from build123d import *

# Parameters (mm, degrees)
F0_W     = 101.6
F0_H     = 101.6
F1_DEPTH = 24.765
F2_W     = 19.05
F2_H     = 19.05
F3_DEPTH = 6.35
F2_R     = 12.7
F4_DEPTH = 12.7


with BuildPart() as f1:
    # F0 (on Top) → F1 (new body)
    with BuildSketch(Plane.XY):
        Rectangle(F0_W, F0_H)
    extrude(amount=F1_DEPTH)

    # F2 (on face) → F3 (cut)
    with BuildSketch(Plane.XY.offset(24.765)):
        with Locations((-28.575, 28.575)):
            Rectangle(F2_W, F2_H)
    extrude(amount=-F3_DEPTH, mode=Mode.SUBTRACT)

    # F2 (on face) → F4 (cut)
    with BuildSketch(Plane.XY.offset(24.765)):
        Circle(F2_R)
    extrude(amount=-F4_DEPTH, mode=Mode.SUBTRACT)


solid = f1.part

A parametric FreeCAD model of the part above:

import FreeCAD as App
import Part
import Sketcher
from FreeCAD import Vector
Q = App.Units.Quantity

doc = App.newDocument("Part")
body = doc.addObject("PartDesign::Body", "Body")

sketch1 = body.newObject("Sketcher::SketchObject", "Sketch")
sketch1.AttachmentSupport = (doc.getObject("XY_Plane"), [""])
sketch1.MapMode = "FlatFace"
sketch1.addGeometry([
    Part.LineSegment(Vector(-50.8, 50.8, 0), Vector(-50.8, -50.8, 0)),
    Part.LineSegment(Vector(-50.8, -50.8, 0), Vector(50.8, -50.8, 0)),
    Part.LineSegment(Vector(50.8, -50.8, 0), Vector(50.8, 50.8, 0)),
    Part.LineSegment(Vector(50.8, 50.8, 0), Vector(-50.8, 50.8, 0)),
], False)
sketch1.addConstraint([
    Sketcher.Constraint("Coincident", 0, 2, 1, 1),
    Sketcher.Constraint("Coincident", 1, 2, 2, 1),
    Sketcher.Constraint("Coincident", 2, 2, 3, 1),
    Sketcher.Constraint("Coincident", 3, 2, 0, 1),
    Sketcher.Constraint("Vertical", 0),
    Sketcher.Constraint("Horizontal", 1),
    Sketcher.Constraint("Vertical", 2),
    Sketcher.Constraint("Horizontal", 3),
    Sketcher.Constraint("Symmetric", 0, 2, 2, 2, -1, 1),
    Sketcher.Constraint("Equal", 3, 0),
    Sketcher.Constraint("DistanceX", 1, 1, 1, 2, Q("4 in")),
])
pad1 = body.newObject("PartDesign::Pad", "Pad")
pad1.Profile = sketch1
pad1.Length = Q("0.975 in")

sketch2 = body.newObject("Sketcher::SketchObject", "Sketch001")
sketch2.AttachmentSupport = (doc.getObject("XY_Plane"), [""])
sketch2.MapMode = "FlatFace"
sketch2.AttachmentOffset = App.Placement(Vector(0, 0, 0.975 * 25.4), App.Rotation())
sketch2.addGeometry([
    Part.LineSegment(Vector(-38.1, 38.1, 0), Vector(-38.1, 19.05, 0)),
    Part.LineSegment(Vector(-38.1, 19.05, 0), Vector(-19.05, 19.05, 0)),
    Part.LineSegment(Vector(-19.05, 19.05, 0), Vector(-19.05, 38.1, 0)),
    Part.LineSegment(Vector(-19.05, 38.1, 0), Vector(-38.1, 38.1, 0)),
], False)
sketch2.addConstraint([
    Sketcher.Constraint("Coincident", 0, 2, 1, 1),
    Sketcher.Constraint("Coincident", 1, 2, 2, 1),
    Sketcher.Constraint("Coincident", 2, 2, 3, 1),
    Sketcher.Constraint("Coincident", 3, 2, 0, 1),
    Sketcher.Constraint("Vertical", 0),
    Sketcher.Constraint("Horizontal", 1),
    Sketcher.Constraint("Vertical", 2),
    Sketcher.Constraint("Horizontal", 3),
    Sketcher.Constraint("Equal", 3, 0),
    Sketcher.Constraint("DistanceX", 1, 1, 1, 2, Q("0.75 in")),
    Sketcher.Constraint("DistanceX", 0, 2, -1, 1, Q("1.5 in")),
    Sketcher.Constraint("DistanceY", -1, 1, 2, 2, Q("1.5 in")),
])
pocket1 = body.newObject("PartDesign::Pocket", "Pocket")
pocket1.Profile = sketch2
pocket1.Length = Q("0.25 in")

sketch3 = body.newObject("Sketcher::SketchObject", "Sketch002")
sketch3.AttachmentSupport = (doc.getObject("XY_Plane"), [""])
sketch3.MapMode = "FlatFace"
sketch3.AttachmentOffset = App.Placement(Vector(0, 0, 0.975 * 25.4), App.Rotation())
sketch3.addGeometry(Part.Circle(Vector(0, 0, 0), Vector(0, 0, 1), 12.7), False)
sketch3.addConstraint([
    Sketcher.Constraint("Coincident", 0, 3, -1, 1),
    Sketcher.Constraint("Diameter", 0, Q("1 in")),
])
pocket2 = body.newObject("PartDesign::Pocket", "Pocket001")
pocket2.Profile = sketch3
pocket2.Length = Q("0.5 in")

doc.recompute()
